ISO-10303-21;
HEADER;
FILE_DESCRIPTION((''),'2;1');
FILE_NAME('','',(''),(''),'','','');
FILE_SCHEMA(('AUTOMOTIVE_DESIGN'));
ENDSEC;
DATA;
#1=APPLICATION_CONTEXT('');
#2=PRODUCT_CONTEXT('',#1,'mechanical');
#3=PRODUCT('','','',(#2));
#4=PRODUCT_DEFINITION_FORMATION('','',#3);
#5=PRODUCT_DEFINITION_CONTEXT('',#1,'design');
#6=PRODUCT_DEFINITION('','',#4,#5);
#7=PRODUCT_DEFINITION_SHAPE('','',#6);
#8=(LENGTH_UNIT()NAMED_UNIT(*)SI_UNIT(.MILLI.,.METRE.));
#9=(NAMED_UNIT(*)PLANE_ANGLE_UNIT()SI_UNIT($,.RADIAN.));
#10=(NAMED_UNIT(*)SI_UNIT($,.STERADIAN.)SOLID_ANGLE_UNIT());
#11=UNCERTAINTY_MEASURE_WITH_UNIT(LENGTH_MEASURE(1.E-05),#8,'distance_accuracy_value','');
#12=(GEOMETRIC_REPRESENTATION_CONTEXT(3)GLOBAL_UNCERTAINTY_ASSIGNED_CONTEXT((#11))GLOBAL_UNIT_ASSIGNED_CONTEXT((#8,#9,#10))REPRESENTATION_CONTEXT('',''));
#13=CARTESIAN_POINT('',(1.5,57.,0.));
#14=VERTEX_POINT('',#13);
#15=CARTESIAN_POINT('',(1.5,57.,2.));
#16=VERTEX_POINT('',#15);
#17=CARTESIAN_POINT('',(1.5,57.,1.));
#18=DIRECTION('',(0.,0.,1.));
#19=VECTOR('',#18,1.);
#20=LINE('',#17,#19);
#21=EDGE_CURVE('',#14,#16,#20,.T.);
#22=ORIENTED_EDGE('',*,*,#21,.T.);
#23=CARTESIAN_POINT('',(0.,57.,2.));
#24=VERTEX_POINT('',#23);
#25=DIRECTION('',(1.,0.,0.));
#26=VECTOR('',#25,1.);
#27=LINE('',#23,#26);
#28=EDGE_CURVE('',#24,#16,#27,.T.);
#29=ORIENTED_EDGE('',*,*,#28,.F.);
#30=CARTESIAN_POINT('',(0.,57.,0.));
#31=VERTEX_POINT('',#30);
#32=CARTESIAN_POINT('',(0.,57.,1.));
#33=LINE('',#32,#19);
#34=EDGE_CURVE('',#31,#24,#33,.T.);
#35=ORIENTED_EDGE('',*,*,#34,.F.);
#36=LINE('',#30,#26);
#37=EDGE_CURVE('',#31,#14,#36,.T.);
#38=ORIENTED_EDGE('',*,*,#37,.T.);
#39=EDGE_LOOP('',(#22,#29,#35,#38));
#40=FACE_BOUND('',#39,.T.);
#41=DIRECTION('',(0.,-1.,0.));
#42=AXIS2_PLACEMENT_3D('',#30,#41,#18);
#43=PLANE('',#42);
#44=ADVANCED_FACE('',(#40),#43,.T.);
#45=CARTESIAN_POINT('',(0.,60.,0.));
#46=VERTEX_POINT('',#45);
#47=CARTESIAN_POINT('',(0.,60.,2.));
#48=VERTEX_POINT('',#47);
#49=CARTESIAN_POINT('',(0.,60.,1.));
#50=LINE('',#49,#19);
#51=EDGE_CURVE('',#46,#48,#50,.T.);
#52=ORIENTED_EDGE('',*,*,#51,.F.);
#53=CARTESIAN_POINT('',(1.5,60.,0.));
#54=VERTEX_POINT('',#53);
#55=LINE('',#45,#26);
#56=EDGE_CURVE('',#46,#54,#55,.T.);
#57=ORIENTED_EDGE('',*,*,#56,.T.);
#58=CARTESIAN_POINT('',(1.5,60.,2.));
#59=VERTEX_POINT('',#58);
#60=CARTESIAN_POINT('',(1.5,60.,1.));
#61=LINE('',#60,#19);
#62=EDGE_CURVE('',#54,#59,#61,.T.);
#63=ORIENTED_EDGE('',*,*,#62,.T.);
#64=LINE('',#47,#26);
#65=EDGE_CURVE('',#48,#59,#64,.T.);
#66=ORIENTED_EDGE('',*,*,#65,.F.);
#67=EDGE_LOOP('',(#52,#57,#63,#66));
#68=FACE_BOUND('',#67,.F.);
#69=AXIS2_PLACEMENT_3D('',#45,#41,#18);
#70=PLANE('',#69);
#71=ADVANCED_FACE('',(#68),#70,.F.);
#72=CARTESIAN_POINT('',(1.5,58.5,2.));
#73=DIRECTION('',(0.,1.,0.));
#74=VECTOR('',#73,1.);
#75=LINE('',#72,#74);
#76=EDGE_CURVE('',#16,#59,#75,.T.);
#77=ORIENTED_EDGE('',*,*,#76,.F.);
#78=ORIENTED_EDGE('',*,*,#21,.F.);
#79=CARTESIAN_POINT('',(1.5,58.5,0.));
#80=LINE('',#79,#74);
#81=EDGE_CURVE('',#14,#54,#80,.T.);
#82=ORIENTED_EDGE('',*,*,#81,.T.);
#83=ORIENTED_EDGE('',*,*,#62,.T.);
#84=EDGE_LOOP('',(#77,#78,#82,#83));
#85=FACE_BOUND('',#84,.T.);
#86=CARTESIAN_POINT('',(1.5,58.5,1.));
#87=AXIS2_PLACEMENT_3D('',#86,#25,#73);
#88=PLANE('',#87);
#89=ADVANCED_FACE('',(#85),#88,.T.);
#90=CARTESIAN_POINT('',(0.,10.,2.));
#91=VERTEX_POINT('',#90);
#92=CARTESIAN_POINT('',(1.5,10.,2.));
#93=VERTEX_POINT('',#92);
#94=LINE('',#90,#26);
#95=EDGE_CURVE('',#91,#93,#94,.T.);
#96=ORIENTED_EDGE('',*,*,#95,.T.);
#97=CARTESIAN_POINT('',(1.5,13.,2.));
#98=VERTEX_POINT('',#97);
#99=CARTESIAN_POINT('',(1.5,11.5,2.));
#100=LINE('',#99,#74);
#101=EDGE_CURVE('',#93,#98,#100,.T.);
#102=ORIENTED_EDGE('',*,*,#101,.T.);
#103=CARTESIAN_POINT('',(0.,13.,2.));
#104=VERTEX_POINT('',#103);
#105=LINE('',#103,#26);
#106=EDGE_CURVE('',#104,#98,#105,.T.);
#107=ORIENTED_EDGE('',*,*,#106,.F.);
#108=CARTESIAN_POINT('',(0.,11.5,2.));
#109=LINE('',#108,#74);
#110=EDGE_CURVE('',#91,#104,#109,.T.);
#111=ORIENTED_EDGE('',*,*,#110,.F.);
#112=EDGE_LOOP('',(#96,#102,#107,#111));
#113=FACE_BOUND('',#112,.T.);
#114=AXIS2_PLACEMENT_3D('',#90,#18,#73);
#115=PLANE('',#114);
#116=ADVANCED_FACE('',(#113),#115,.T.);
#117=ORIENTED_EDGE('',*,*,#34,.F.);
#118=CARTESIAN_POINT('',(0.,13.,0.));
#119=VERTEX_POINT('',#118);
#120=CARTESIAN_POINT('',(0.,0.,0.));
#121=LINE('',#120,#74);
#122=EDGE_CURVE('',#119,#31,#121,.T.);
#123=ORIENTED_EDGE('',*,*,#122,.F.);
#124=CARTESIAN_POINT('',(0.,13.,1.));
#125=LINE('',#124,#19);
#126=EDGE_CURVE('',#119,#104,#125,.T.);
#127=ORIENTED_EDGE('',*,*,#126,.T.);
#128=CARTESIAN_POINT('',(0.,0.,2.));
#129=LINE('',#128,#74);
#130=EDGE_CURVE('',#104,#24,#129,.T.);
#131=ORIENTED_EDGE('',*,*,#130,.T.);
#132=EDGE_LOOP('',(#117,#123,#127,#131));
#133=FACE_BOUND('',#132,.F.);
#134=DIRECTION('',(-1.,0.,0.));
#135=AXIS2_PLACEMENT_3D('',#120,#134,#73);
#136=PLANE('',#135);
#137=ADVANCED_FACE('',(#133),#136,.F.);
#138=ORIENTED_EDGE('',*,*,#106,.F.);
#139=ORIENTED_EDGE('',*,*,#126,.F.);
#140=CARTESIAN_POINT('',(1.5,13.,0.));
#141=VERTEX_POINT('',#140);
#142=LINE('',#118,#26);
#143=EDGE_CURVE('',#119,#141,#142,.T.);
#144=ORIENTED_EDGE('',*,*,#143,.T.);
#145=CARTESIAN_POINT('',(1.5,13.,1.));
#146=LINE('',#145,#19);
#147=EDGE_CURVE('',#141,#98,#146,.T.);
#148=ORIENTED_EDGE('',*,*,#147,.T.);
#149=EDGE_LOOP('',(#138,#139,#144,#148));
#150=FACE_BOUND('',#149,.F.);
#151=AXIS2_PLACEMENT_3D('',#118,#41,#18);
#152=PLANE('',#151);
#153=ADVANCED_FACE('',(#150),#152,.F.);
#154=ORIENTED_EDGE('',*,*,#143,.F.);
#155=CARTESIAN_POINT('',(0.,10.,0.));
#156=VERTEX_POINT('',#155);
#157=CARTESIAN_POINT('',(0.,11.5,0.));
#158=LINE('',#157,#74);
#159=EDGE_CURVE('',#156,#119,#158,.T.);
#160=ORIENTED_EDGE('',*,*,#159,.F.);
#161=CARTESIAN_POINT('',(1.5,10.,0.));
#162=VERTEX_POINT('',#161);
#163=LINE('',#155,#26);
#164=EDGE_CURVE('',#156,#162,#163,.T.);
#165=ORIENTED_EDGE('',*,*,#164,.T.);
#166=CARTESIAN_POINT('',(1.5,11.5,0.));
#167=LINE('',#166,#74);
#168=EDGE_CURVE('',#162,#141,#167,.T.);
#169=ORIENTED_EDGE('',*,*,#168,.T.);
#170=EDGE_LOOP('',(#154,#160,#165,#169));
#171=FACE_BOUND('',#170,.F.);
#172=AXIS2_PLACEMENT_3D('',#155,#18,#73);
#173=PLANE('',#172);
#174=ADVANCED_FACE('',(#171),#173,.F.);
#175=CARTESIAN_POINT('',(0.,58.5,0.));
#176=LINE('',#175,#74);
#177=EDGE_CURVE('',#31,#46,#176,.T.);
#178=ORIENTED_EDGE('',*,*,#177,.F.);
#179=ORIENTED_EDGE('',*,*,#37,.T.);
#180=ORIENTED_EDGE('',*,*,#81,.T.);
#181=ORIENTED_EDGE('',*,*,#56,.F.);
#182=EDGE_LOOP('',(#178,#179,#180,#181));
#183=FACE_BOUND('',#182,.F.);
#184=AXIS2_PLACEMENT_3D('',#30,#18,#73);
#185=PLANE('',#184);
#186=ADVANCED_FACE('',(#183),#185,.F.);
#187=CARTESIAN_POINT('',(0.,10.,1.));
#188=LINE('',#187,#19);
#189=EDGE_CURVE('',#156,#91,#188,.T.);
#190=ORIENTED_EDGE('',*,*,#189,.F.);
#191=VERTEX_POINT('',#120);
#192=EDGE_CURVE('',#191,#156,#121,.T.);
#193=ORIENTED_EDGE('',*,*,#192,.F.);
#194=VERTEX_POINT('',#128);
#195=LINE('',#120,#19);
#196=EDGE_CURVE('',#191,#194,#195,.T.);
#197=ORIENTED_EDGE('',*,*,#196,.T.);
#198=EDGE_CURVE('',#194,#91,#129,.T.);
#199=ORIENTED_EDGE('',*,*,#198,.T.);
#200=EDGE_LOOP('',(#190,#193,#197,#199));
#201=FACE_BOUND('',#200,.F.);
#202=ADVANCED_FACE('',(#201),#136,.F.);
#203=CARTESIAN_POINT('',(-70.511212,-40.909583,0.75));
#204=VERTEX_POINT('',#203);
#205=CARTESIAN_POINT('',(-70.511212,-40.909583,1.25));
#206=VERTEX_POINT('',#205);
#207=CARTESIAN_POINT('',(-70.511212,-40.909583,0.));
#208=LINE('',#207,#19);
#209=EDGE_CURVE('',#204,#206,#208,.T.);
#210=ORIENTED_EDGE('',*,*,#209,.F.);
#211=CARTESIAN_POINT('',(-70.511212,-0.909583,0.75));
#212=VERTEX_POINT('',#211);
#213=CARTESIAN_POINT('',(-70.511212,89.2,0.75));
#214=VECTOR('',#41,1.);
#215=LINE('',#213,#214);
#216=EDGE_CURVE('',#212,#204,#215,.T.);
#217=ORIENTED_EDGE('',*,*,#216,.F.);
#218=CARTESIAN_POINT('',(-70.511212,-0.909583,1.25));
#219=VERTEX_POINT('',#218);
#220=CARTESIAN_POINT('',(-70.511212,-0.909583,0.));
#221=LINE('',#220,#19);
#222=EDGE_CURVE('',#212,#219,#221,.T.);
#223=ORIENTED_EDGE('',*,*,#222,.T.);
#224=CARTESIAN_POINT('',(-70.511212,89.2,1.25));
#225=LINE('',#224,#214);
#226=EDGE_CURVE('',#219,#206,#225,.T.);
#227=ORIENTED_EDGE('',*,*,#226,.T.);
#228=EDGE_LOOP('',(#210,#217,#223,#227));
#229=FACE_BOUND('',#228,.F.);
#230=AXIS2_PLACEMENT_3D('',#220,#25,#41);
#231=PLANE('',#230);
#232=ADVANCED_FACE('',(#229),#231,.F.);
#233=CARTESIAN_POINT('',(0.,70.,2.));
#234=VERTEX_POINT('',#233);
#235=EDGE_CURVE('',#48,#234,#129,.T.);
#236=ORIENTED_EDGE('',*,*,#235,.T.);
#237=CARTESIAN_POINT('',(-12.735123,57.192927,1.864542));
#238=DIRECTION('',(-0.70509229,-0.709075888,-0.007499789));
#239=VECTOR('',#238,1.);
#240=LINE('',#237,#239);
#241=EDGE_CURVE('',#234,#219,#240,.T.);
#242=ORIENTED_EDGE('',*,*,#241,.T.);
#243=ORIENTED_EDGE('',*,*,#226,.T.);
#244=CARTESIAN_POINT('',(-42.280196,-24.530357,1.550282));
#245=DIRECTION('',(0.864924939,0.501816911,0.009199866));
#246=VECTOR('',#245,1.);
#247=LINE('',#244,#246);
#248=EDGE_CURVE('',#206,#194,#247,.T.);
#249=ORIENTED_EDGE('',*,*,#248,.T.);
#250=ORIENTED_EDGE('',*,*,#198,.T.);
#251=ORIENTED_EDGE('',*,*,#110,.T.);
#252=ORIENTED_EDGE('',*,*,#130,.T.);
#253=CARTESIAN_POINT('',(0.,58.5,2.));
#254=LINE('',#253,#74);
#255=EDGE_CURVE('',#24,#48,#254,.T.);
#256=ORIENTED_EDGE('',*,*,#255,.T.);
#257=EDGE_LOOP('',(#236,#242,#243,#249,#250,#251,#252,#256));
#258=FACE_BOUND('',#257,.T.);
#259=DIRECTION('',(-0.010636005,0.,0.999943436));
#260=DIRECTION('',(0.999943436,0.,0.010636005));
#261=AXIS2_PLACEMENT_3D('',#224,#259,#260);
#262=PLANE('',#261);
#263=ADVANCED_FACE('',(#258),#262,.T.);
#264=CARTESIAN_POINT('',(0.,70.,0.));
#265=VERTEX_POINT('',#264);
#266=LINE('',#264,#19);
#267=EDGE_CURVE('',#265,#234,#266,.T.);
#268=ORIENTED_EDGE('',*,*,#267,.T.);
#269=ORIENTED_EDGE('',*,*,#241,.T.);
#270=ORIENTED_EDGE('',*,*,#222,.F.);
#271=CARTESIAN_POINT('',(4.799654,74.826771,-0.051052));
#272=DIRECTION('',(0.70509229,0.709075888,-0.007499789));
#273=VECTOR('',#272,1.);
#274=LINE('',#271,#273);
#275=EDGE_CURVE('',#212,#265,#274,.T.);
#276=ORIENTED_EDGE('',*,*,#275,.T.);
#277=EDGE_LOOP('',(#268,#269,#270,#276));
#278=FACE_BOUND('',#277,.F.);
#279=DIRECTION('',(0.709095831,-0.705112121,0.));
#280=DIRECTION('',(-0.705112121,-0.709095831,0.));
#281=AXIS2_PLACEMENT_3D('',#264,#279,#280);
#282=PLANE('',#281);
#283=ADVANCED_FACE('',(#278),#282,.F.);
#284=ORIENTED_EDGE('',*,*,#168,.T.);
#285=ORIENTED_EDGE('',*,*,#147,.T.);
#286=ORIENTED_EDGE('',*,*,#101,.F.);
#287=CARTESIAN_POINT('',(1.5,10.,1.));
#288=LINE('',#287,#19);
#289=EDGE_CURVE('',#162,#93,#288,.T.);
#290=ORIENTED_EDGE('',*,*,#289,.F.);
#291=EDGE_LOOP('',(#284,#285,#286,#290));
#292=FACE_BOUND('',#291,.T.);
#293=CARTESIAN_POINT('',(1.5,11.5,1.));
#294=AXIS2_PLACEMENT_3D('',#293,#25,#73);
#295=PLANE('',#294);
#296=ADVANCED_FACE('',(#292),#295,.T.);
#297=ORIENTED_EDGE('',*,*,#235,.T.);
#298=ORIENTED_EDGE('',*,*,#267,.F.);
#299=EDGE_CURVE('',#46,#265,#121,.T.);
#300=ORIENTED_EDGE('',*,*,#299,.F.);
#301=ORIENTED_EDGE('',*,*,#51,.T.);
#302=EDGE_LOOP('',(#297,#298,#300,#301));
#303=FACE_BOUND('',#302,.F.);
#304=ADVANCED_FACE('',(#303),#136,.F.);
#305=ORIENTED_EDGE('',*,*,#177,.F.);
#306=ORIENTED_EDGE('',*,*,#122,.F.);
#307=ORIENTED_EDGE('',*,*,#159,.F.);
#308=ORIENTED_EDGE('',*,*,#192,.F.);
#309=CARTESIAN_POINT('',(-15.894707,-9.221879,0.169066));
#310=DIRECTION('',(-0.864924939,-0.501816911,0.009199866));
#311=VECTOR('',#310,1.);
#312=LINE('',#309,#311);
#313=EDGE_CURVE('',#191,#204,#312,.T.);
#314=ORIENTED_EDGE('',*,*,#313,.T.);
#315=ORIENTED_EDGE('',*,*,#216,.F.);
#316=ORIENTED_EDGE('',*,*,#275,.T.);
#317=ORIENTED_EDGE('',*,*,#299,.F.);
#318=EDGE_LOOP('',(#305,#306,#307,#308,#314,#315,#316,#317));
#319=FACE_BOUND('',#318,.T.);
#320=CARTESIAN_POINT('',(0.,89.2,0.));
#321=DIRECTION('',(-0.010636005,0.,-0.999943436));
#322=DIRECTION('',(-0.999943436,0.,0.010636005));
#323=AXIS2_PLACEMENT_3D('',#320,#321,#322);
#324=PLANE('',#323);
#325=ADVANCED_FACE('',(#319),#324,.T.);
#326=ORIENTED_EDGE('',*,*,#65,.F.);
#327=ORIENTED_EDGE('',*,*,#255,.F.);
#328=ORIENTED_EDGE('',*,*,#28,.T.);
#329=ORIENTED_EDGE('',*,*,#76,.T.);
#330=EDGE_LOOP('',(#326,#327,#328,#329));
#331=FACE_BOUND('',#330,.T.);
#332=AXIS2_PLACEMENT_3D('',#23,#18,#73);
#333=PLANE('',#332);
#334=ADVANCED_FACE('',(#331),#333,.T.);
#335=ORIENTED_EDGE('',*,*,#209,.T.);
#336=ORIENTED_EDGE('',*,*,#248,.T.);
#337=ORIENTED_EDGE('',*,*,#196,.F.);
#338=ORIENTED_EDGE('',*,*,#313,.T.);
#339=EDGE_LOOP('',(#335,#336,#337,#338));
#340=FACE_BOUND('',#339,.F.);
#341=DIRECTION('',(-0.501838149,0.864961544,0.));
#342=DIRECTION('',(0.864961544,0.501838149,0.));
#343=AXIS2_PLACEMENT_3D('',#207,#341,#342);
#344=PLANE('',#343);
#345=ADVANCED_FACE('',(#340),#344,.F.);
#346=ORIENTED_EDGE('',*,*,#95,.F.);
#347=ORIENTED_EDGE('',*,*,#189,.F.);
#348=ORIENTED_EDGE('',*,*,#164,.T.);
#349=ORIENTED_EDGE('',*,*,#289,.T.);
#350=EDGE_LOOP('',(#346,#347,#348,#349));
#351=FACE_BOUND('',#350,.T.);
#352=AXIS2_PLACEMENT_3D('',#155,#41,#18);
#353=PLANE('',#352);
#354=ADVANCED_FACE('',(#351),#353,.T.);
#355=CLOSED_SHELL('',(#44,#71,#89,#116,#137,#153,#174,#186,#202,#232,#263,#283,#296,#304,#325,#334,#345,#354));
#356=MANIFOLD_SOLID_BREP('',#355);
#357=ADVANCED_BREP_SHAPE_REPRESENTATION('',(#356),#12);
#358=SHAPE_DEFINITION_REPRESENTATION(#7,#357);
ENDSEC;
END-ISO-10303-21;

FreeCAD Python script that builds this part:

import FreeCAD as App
import Part
import Sketcher
from FreeCAD import Vector


def add_polygon(sketch, points):
    """Adds a closed chain of lines whose ends are joined by coincident constraints."""
    first, n = sketch.GeometryCount, len(points)
    for a, b in zip(points, points[1:] + points[:1]):
        sketch.addGeometry(Part.LineSegment(App.Vector(*a, 0), App.Vector(*b, 0)), False)
    for i in range(n):
        sketch.addConstraint(Sketcher.Constraint("Coincident", first + i, 2, first + (i + 1) % n, 1))

doc = App.newDocument("Part")
body = doc.addObject("PartDesign::Body", "Body")

sketch1 = doc.addObject("Sketcher::SketchObject", "Sketch")
body.addObject(sketch1)
sketch1.AttachmentSupport = (doc.XY_Plane, [""])
sketch1.MapMode = "FlatFace"
add_polygon(sketch1, [(-71, -41), (0, 0), (0, 70), (-71, -1)])
sketch1.addConstraint([
    Sketcher.Constraint("Vertical", 1),
    Sketcher.Constraint("Vertical", 3),
    Sketcher.Constraint("Coincident", 0, 2, -1, 1),
    Sketcher.Constraint("DistanceY", 1, 1, 1, 2, 70.0),
    Sketcher.Constraint("DistanceY", 3, 2, 3, 1, 40.0),
    Sketcher.Constraint("Distance", 2, 100.0),
    Sketcher.Constraint("DistanceX", 2, 2, -1, 1, 70.511212),
])
pad1 = doc.addObject("PartDesign::Pad", "Pad")
body.addObject(pad1)
pad1.Profile = sketch1
pad1.Length = 2

sketch2 = doc.addObject("Sketcher::SketchObject", "Sketch001")
body.addObject(sketch2)
sketch2.AttachmentSupport = (doc.XZ_Plane, [""])
sketch2.MapMode = "FlatFace"
sketch2.AttachmentOffset = App.Placement(Vector(0, 0, -89.2), App.Rotation())
add_polygon(sketch2, [(-70.5, 0), (0, 0), (-70.5, 0.8)])
add_polygon(sketch2, [(-70.5, 1.2), (0, 2), (-70.5, 2)])
sketch2.addConstraint([
    Sketcher.Constraint("Horizontal", 0),
    Sketcher.Constraint("Vertical", 2),
    Sketcher.Constraint("Horizontal", 4),
    Sketcher.Constraint("Vertical", 5),
    Sketcher.Constraint("Coincident", 0, 2, -1, 1),
    Sketcher.Constraint("PointOnObject", 3, 2, -2),
    Sketcher.Constraint("Vertical", 2, 2, 4, 2),
    Sketcher.Constraint("Equal", 2, 5),
    Sketcher.Constraint("DistanceY", -1, 1, 3, 2, 2.0),
    Sketcher.Constraint("DistanceY", 2, 2, 2, 1, 0.75),
    Sketcher.Constraint("Distance", 1, 70.515201),
])
pocket1 = doc.addObject("PartDesign::Pocket", "Pocket")
body.addObject(pocket1)
pocket1.Profile = sketch2
pocket1.Type = "ThroughAll"
pocket1.Reversed = True

sketch3 = doc.addObject("Sketcher::SketchObject", "Sketch002")
body.addObject(sketch3)
sketch3.AttachmentSupport = (doc.YZ_Plane, [""])
sketch3.MapMode = "FlatFace"
add_polygon(sketch3, [(57, 2), (57, 0), (60, 0), (60, 2)])
add_polygon(sketch3, [(10, 2), (10, 0), (13, 0), (13, 2)])
sketch3.addConstraint([
    Sketcher.Constraint("Vertical", 0),
    Sketcher.Constraint("Horizontal", 1),
    Sketcher.Constraint("Vertical", 2),
    Sketcher.Constraint("Horizontal", 3),
    Sketcher.Constraint("Vertical", 4),
    Sketcher.Constraint("Horizontal", 5),
    Sketcher.Constraint("Vertical", 6),
    Sketcher.Constraint("Horizontal", 7),
    Sketcher.Constraint("PointOnObject", 0, 2, -1),
    Sketcher.Constraint("PointOnObject", 4, 2, -1),
    Sketcher.Constraint("Horizontal", 3, 2, 6, 2),
    Sketcher.Constraint("Equal", 3, 5),
    Sketcher.Constraint("DistanceX", 1, 1, 1, 2, 3.0),
    Sketcher.Constraint("DistanceY", 0, 2, 0, 1, 2.0),
    Sketcher.Constraint("DistanceX", -1, 1, 0, 2, 57.0),
    Sketcher.Constraint("DistanceX", -1, 1, 4, 2, 10.0),
])
pad2 = doc.addObject("PartDesign::Pad", "Pad001")
body.addObject(pad2)
pad2.Profile = sketch3
pad2.Length = 1.5

doc.recompute()
